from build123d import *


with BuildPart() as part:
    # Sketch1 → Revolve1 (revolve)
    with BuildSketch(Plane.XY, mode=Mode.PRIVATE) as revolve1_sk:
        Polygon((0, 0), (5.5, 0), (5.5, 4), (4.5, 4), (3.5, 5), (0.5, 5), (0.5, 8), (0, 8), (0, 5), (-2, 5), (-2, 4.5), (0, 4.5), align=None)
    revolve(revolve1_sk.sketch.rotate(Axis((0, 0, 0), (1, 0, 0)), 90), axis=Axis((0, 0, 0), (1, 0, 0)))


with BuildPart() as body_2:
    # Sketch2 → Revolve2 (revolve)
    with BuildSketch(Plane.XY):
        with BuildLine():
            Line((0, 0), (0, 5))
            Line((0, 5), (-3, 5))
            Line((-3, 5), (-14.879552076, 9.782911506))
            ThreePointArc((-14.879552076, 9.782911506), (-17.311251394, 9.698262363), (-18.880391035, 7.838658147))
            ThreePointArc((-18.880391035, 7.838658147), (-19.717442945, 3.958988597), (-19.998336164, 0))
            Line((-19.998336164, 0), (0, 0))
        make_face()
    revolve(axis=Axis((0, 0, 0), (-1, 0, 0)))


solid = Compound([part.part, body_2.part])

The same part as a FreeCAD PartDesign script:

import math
import FreeCAD as App
import Part
import Sketcher
from FreeCAD import Vector
Q = App.Units.Quantity


def add_polygon(sketch, points):
    """Adds a closed chain of lines whose ends are joined by coincident constraints."""
    first, n = sketch.GeometryCount, len(points)
    for a, b in zip(points, points[1:] + points[:1]):
        sketch.addGeometry(Part.LineSegment(App.Vector(*a, 0), App.Vector(*b, 0)), False)
    for i in range(n):
        sketch.addConstraint(Sketcher.Constraint("Coincident", first + i, 2, first + (i + 1) % n, 1))

doc = App.newDocument("Part")
params = doc.addObject("Spreadsheet::Sheet", "Params")
for row, (alias, value) in enumerate([
    ("sketch1_width", "1 mm"),
    ("sketch1_width2", "3 mm"),
    ("sketch1_width3", "2 mm"),
    ("sketch1_height", "4 mm"),
    ("sketch1_width4", "5.5 mm"),
    ("revolution_angle", "360 deg"),
    ("sketch2_radius", "3 mm"),
    ("sketch2_width", "3 mm"),
    ("sketch2_height", "5 mm"),
    ("sketch2_radius2", "28.04 mm"),
    ("revolution2_angle", "360 deg"),
], start=1):
    params.set(f"A{row}", alias)
    params.set(f"B{row}", "=" + value)
    params.setAlias(f"B{row}", alias)

body = doc.addObject("PartDesign::Body", "Body")

sketch1 = body.newObject("Sketcher::SketchObject", "Sketch")
sketch1.AttachmentSupport = (doc.getObject("XY_Plane"), [""])
sketch1.MapMode = "FlatFace"
add_polygon(sketch1, [(0, 0), (5.5, 0), (5.5, 4), (4.5, 4), (3.5, 5), (0.5, 5), (0.5, 8), (0, 8), (0, 5), (-2, 5), (-2, 4.5), (0, 4.5)])
sketch1.addConstraint([
    Sketcher.Constraint("Horizontal", 0),
    Sketcher.Constraint("Vertical", 1),
    Sketcher.Constraint("Horizontal", 2),
    Sketcher.Constraint("Horizontal", 4),
    Sketcher.Constraint("Vertical", 5),
    Sketcher.Constraint("Horizontal", 6),
    Sketcher.Constraint("Vertical", 7),
    Sketcher.Constraint("Horizontal", 8),
    Sketcher.Constraint("Vertical", 9),
    Sketcher.Constraint("Horizontal", 10),
    Sketcher.Constraint("Vertical", 11),
    Sketcher.Constraint("Coincident", 11, 2, -1, 1),
    Sketcher.Constraint("PointOnObject", 6, 2, -2),
    Sketcher.Constraint("Horizontal", 4, 2, 7, 2),
    Sketcher.Constraint("Equal", 4, 5),
    Sketcher.Constraint("Equal", 6, 9),
    Sketcher.Constraint("DistanceX", 2, 2, 2, 1, 1.0),
    Sketcher.Constraint("DistanceX", 4, 2, 4, 1, 3.0),
    Sketcher.Constraint("DistanceX", 8, 2, 8, 1, 2.0),
    Sketcher.Constraint("DistanceY", 1, 1, 1, 2, 4.0),
    Sketcher.Constraint("Angle", 3, Q("135 deg")),
    Sketcher.Constraint("DistanceX", 0, 1, 0, 2, 5.5),
    Sketcher.Constraint("DistanceX", 6, 2, 6, 1, 0.5),
])
sketch1.setExpression("Constraints[28]", "Params.sketch1_width")
sketch1.setExpression("Constraints[29]", "Params.sketch1_width2")
sketch1.setExpression("Constraints[30]", "Params.sketch1_width3")
sketch1.setExpression("Constraints[31]", "Params.sketch1_height")
sketch1.setExpression("Constraints[33]", "Params.sketch1_width4")
revolution = body.newObject("PartDesign::Revolution", "Revolution")
revolution.Profile = sketch1
revolution.ReferenceAxis = (sketch1, ["H_Axis"])
revolution.setExpression("Angle", "Params.revolution_angle")
body2 = doc.addObject("PartDesign::Body", "Body001")

sketch2 = body2.newObject("Sketcher::SketchObject", "Sketch001")
sketch2.AttachmentSupport = (doc.getObject("XY_Plane001"), [""])
sketch2.MapMode = "FlatFace"
sketch2.addGeometry([
    Part.LineSegment(Vector(0, 0, 0), Vector(0, 5, 0)),
    Part.LineSegment(Vector(0, 5, 0), Vector(-3, 5, 0)),
    Part.LineSegment(Vector(-3, 5, 0), Vector(-14.9, 9.8, 0)),
    Part.ArcOfCircle(Part.Circle(Vector(-16, 7, 0), Vector(0, 0, 1), 3), math.radians(68), math.radians(164)),
    Part.ArcOfCircle(Part.Circle(Vector(8, 0, 0), Vector(0, 0, 1), 28), math.radians(163.77), math.radians(180)),
    Part.LineSegment(Vector(-20, 0, 0), Vector(0, 0, 0)),
], False)
sketch2.addConstraint([
    Sketcher.Constraint("Coincident", 0, 2, 1, 1),
    Sketcher.Constraint("Coincident", 1, 2, 2, 1),
    Sketcher.Constraint("Tangent", 2, 2, 3, 1),
    Sketcher.Constraint("Tangent", 3, 2, 4, 1),
    Sketcher.Constraint("Coincident", 4, 2, 5, 1),
    Sketcher.Constraint("Coincident", 5, 2, 0, 1),
    Sketcher.Constraint("Vertical", 0),
    Sketcher.Constraint("Horizontal", 1),
    Sketcher.Constraint("Horizontal", 5),
    Sketcher.Constraint("Coincident", 5, 2, -1, 1),
    Sketcher.Constraint("PointOnObject", 4, 3, -1),
    Sketcher.Constraint("Radius", 3, 3.0),
    Sketcher.Constraint("DistanceX", 1, 2, 1, 1, 3.0),
    Sketcher.Constraint("DistanceY", 0, 1, 0, 2, 5.0),
    Sketcher.Constraint("Radius", 4, 28.04),
    Sketcher.Constraint("DistanceX", 3, 3, -1, 1, 16.0),
    Sketcher.Constraint("DistanceY", -1, 1, 3, 3, 7.0),
])
sketch2.setExpression("Constraints[11]", "Params.sketch2_radius")
sketch2.setExpression("Constraints[12]", "Params.sketch2_width")
sketch2.setExpression("Constraints[13]", "Params.sketch2_height")
sketch2.setExpression("Constraints[14]", "Params.sketch2_radius2")
revolution2 = body2.newObject("PartDesign::Revolution", "Revolution001")
revolution2.Profile = sketch2
revolution2.ReferenceAxis = (sketch2, ["H_Axis"])
revolution2.setExpression("Angle", "Params.revolution2_angle")

doc.recompute()
